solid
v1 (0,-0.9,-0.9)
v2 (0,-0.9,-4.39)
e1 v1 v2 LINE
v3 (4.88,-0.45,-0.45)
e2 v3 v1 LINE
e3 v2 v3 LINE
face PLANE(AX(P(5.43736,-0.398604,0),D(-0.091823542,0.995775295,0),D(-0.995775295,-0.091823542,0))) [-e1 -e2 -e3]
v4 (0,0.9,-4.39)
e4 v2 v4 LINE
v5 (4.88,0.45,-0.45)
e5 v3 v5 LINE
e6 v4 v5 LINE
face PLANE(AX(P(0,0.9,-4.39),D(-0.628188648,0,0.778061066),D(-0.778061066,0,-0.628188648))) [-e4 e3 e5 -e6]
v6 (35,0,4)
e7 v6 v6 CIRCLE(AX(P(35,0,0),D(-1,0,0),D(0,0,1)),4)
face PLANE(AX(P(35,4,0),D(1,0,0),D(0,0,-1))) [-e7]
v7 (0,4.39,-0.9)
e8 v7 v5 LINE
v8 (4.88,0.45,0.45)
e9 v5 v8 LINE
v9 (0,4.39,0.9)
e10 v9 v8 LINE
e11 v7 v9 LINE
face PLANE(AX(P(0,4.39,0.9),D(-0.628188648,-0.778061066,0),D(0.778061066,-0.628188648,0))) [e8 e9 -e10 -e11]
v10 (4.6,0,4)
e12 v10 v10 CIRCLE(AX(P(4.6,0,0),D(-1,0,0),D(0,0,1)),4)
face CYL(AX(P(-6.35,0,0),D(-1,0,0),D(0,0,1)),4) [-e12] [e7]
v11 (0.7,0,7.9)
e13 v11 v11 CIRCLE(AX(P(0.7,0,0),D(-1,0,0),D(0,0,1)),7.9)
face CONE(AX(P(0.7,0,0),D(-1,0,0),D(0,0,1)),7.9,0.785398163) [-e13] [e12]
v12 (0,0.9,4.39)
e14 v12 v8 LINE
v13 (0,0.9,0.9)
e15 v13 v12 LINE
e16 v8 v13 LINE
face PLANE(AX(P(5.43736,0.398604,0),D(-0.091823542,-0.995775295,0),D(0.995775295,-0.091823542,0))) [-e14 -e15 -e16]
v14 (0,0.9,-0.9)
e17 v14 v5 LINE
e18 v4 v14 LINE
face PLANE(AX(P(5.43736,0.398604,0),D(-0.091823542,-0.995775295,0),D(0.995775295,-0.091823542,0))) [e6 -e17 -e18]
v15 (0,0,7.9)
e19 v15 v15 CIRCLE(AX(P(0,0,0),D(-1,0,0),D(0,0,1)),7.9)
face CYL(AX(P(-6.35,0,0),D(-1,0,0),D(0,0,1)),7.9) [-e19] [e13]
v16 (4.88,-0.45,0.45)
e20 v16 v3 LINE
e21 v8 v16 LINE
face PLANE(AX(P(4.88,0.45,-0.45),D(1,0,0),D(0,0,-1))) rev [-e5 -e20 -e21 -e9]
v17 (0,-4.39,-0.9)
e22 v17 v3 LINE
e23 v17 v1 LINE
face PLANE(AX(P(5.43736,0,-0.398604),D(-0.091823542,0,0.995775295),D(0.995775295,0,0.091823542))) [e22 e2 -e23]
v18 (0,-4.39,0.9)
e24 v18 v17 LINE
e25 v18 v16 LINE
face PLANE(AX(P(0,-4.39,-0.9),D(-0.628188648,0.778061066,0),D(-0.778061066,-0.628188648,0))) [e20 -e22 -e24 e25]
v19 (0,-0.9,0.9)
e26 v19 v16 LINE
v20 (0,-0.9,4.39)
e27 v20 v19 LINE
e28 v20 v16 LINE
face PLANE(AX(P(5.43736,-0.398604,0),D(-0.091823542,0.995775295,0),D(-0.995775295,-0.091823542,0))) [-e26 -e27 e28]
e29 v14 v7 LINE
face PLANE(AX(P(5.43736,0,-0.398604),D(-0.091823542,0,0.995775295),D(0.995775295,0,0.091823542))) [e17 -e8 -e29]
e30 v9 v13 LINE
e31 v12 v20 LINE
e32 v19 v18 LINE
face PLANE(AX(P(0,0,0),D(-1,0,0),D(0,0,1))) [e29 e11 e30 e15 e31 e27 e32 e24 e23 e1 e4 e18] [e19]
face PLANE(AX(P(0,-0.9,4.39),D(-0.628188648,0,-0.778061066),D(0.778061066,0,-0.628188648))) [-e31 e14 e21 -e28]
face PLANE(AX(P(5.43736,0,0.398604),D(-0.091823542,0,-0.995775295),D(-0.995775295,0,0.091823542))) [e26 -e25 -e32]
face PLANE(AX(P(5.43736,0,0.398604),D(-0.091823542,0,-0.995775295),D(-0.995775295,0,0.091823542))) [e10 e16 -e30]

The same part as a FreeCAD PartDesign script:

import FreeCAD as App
import Part
import Sketcher
Q = App.Units.Quantity

doc = App.newDocument("Part")
body = doc.addObject("PartDesign::Body", "Body")

sketch1 = doc.addObject("Sketcher::SketchObject", "Sketch")
body.addObject(sketch1)
sketch1.AttachmentSupport = (doc.XY_Plane, [""])
sketch1.MapMode = "FlatFace"
sketch1.addGeometry([
    Part.LineSegment(App.Vector(0, 7.9, 0), App.Vector(0, 0, 0)),
    Part.LineSegment(App.Vector(0, 0, 0), App.Vector(35, 0, 0)),
    Part.LineSegment(App.Vector(35, 0, 0), App.Vector(35, 4, 0)),
    Part.LineSegment(App.Vector(35, 4, 0), App.Vector(4.6, 4, 0)),
    Part.LineSegment(App.Vector(4.6, 4, 0), App.Vector(0.7, 7.9, 0)),
    Part.LineSegment(App.Vector(0.7, 7.9, 0), App.Vector(0, 7.9, 0)),
], False)
sketch1.addConstraint([
    Sketcher.Constraint("Coincident", 0, 2, 1, 1),
    Sketcher.Constraint("Coincident", 1, 2, 2, 1),
    Sketcher.Constraint("Coincident", 2, 2, 3, 1),
    Sketcher.Constraint("Coincident", 3, 2, 4, 1),
    Sketcher.Constraint("Coincident", 4, 2, 5, 1),
    Sketcher.Constraint("Coincident", 5, 2, 0, 1),
    Sketcher.Constraint("Vertical", 0),
    Sketcher.Constraint("Horizontal", 1),
    Sketcher.Constraint("Vertical", 2),
    Sketcher.Constraint("Horizontal", 3),
    Sketcher.Constraint("Horizontal", 5),
    Sketcher.Constraint("Coincident", 0, 2, -1, 1),
    Sketcher.Constraint("DistanceX", 1, 1, 1, 2, Q("35 mm")),
    Sketcher.Constraint("DistanceY", 2, 1, 2, 2, Q("4 mm")),
    Sketcher.Constraint("Angle", 4, Q("135 deg")),
    Sketcher.Constraint("DistanceX", 3, 2, 3, 1, Q("30.4 mm")),
    Sketcher.Constraint("DistanceX", 5, 2, 5, 1, Q("0.7 mm")),
])
revolution = doc.addObject("PartDesign::Revolution", "Revolution")
body.addObject(revolution)
revolution.Profile = sketch1
revolution.ReferenceAxis = (sketch1, ["H_Axis"])
revolution.Angle = 360

sketch2 = doc.addObject("Sketcher::SketchObject", "Sketch001")
body.addObject(sketch2)
sketch2.AttachmentSupport = (doc.YZ_Plane, [""])
sketch2.MapMode = "FlatFace"
sketch2.addGeometry([
    Part.LineSegment(App.Vector(4.4, 0.9, 0), App.Vector(4.4, -0.9, 0)),
    Part.LineSegment(App.Vector(4.4, -0.9, 0), App.Vector(-4.4, -0.9, 0)),
    Part.LineSegment(App.Vector(-4.4, -0.9, 0), App.Vector(-4.4, 0.9, 0)),
    Part.LineSegment(App.Vector(-4.4, 0.9, 0), App.Vector(4.4, 0.9, 0)),
], False)
sketch2.addConstraint([
    Sketcher.Constraint("Coincident", 0, 2, 1, 1),
    Sketcher.Constraint("Coincident", 1, 2, 2, 1),
    Sketcher.Constraint("Coincident", 2, 2, 3, 1),
    Sketcher.Constraint("Coincident", 3, 2, 0, 1),
    Sketcher.Constraint("Vertical", 0),
    Sketcher.Constraint("Horizontal", 1),
    Sketcher.Constraint("Vertical", 2),
    Sketcher.Constraint("Horizontal", 3),
    Sketcher.Constraint("Symmetric", 0, 2, 2, 2, -1, 1),
    Sketcher.Constraint("DistanceY", 0, 2, 0, 1, Q("1.8 mm")),
    Sketcher.Constraint("DistanceX", 1, 2, 1, 1, Q("8.78 mm")),
])

sketch3 = doc.addObject("Sketcher::SketchObject", "Sketch002")
body.addObject(sketch3)
sketch3.AttachmentSupport = (doc.YZ_Plane, [""])
sketch3.MapMode = "FlatFace"
sketch3.AttachmentOffset = App.Placement(App.Vector(0, 0, 4.88), App.Rotation())
sketch3.addGeometry([
    Part.LineSegment(App.Vector(0.5, 0.5, 0), App.Vector(0.5, -0.5, 0)),
    Part.LineSegment(App.Vector(0.5, -0.5, 0), App.Vector(-0.5, -0.5, 0)),
    Part.LineSegment(App.Vector(-0.5, -0.5, 0), App.Vector(-0.5, 0.5, 0)),
    Part.LineSegment(App.Vector(-0.5, 0.5, 0), App.Vector(0.5, 0.5, 0)),
], False)
sketch3.addConstraint([
    Sketcher.Constraint("Coincident", 0, 2, 1, 1),
    Sketcher.Constraint("Coincident", 1, 2, 2, 1),
    Sketcher.Constraint("Coincident", 2, 2, 3, 1),
    Sketcher.Constraint("Coincident", 3, 2, 0, 1),
    Sketcher.Constraint("Vertical", 0),
    Sketcher.Constraint("Horizontal", 1),
    Sketcher.Constraint("Vertical", 2),
    Sketcher.Constraint("Horizontal", 3),
    Sketcher.Constraint("Symmetric", 0, 2, 2, 2, -1, 1),
    Sketcher.Constraint("Equal", 3, 0),
    Sketcher.Constraint("DistanceX", 1, 2, 1, 1, Q("0.9 mm")),
])

subtractiveloft = doc.addObject("PartDesign::SubtractiveLoft", "SubtractiveLoft")
body.addObject(subtractiveloft)
subtractiveloft.Profile = sketch2
subtractiveloft.Sections = [sketch3]
doc.recompute()

polarpattern = doc.addObject("PartDesign::PolarPattern", "PolarPattern")
body.addObject(polarpattern)
polarpattern.Originals = [subtractiveloft]
polarpattern.Axis = (doc.X_Axis, [""])
polarpattern.Angle = 90
polarpattern.Occurrences = 2
body.Tip = polarpattern

doc.recompute()
